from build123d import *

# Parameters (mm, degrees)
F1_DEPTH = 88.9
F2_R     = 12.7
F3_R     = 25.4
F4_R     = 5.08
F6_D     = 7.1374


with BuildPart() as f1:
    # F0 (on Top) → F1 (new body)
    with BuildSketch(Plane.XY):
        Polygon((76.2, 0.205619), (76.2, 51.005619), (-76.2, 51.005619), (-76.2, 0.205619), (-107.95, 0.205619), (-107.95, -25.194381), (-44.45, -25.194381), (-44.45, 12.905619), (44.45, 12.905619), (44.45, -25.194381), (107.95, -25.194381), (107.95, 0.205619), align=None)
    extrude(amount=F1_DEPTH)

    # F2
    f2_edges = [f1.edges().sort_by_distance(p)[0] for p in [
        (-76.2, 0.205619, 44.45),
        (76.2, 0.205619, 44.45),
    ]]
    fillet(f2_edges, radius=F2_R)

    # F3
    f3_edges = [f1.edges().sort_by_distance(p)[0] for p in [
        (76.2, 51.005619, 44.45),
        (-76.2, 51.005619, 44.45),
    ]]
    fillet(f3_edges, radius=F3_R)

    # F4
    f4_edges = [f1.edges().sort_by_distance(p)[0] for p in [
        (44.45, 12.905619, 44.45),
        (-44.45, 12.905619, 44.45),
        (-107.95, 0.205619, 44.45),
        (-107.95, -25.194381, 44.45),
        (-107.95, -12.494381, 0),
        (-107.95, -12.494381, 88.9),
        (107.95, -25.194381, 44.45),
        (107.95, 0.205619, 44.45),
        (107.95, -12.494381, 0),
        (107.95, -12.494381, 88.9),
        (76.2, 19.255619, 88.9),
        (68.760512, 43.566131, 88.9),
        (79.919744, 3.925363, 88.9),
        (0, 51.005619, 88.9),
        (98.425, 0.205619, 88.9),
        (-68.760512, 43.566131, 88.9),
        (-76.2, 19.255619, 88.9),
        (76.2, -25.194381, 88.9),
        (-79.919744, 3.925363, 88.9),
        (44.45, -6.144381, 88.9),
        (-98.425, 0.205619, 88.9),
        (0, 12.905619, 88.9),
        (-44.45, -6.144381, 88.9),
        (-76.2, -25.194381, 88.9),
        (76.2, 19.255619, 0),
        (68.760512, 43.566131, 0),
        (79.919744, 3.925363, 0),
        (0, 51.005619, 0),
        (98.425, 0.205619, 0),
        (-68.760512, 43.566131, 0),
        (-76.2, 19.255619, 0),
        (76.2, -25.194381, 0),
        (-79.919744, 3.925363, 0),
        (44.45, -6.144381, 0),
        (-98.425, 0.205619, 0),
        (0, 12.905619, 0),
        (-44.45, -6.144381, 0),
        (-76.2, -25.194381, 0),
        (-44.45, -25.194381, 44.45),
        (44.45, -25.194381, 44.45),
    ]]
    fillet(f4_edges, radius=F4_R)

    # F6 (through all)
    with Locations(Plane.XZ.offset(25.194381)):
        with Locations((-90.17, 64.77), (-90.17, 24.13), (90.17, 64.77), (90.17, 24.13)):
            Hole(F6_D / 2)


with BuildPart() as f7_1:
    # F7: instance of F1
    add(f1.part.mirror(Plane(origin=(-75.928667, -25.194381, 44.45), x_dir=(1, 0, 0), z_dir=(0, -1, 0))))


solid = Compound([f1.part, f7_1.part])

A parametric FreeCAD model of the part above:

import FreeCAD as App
import Part
import Sketcher

V = App.Vector
Q = App.Units.Quantity


def edges_at(feature, points):
    """Names of the edges that pass closest to the given points."""
    edges = feature.Shape.Edges
    near = lambda p: min(range(len(edges)), key=lambda i: edges[i].distToShape(Part.Vertex(*p))[0])
    return sorted({f"Edge{near(p) + 1}" for p in points})


def add_polygon(sketch, points):
    """Adds a closed chain of lines whose ends are joined by coincident constraints."""
    first, n = sketch.GeometryCount, len(points)
    for a, b in zip(points, points[1:] + points[:1]):
        sketch.addGeometry(Part.LineSegment(App.Vector(*a, 0), App.Vector(*b, 0)), False)
    for i in range(n):
        sketch.addConstraint(Sketcher.Constraint("Coincident", first + i, 2, first + (i + 1) % n, 1))

doc = App.newDocument("Part")
body = doc.addObject("PartDesign::Body", "Body")

# Sketch on XY plane
sketch1 = body.newObject("Sketcher::SketchObject", "Sketch")
sketch1.AttachmentSupport = (doc.getObject("XY_Plane"), [""])
sketch1.MapMode = "FlatFace"
add_polygon(sketch1, [(76, 0), (76, 51), (-76, 51), (-76, 0), (-108, 0), (-108, -25), (-44, -25), (-44, 13), (44, 13), (44, -25), (108, -25), (108, 0)])  # lines 0-11
sketch1.addConstraint([
    Sketcher.Constraint("Vertical", 0),
    Sketcher.Constraint("Horizontal", 1),
    Sketcher.Constraint("Vertical", 2),
    Sketcher.Constraint("Horizontal", 3),
    Sketcher.Constraint("Vertical", 4),
    Sketcher.Constraint("Horizontal", 5),
    Sketcher.Constraint("Vertical", 6),
    Sketcher.Constraint("Horizontal", 7),
    Sketcher.Constraint("Vertical", 8),
    Sketcher.Constraint("Horizontal", 9),
    Sketcher.Constraint("Vertical", 10),
    Sketcher.Constraint("Horizontal", 11),
    Sketcher.Constraint("Symmetric", 5, 2, 8, 2, -2),
    Sketcher.Constraint("Symmetric", 3, 2, 10, 2, -2),
    Sketcher.Constraint("Equal", 3, 11),
    Sketcher.Constraint("DistanceX", 1, 2, 1, 1, Q("6 in")),
    Sketcher.Constraint("DistanceY", 0, 1, 0, 2, Q("2 in")),
    Sketcher.Constraint("DistanceY", 4, 2, 4, 1, Q("1 in")),
    Sketcher.Constraint("DistanceX", 5, 1, 5, 2, Q("2.5 in")),
    Sketcher.Constraint("DistanceX", 7, 1, 7, 2, Q("3.5 in")),
    Sketcher.Constraint("DistanceY", 6, 1, 6, 2, Q("1.5 in")),
    Sketcher.Constraint("DistanceY", -1, 1, 0, 2, Q("51.005619 mm")),
])
pad1 = body.newObject("PartDesign::Pad", "Pad")
pad1.Profile = sketch1
pad1.Length = Q("3.5 in")
doc.recompute()

fillet = body.newObject("PartDesign::Fillet", "Fillet")
fillet.Base = (pad1, edges_at(pad1, [(-76.2, 0.206, 44.45), (76.2, 0.206, 44.45)]))
fillet.Radius = Q("0.5 in")
doc.recompute()

fillet2 = body.newObject("PartDesign::Fillet", "Fillet001")
fillet2.Base = (fillet, edges_at(fillet, [(76.2, 51.006, 44.45), (-76.2, 51.006, 44.45)]))
fillet2.Radius = Q("1 in")
doc.recompute()

fillet3 = body.newObject("PartDesign::Fillet", "Fillet002")
fillet3.Base = (fillet2, ["Edge1"])
fillet3.UseAllEdges = True
fillet3.Radius = Q("0.2 in")

# Sketch on XZ plane
sketch2 = body.newObject("Sketcher::SketchObject", "Sketch001")
sketch2.AttachmentSupport = (doc.getObject("XZ_Plane"), [""])
sketch2.MapMode = "FlatFace"
sketch2.AttachmentOffset = App.Placement(V(0, 0, 25.194381), App.Rotation())
sketch2.addGeometry([
    Part.Circle(V(-90.2, 64.8, 0), V(0, 0, 1), 3.6),
    Part.Circle(V(-90.2, 24.1, 0), V(0, 0, 1), 3.6),
    Part.Circle(V(90.2, 64.8, 0), V(0, 0, 1), 3.6),
    Part.Circle(V(90.2, 24.1, 0), V(0, 0, 1), 3.6),
], False)
sketch2.addConstraint([
    Sketcher.Constraint("Equal", 0, 1),
    Sketcher.Constraint("Equal", 1, 2),
    Sketcher.Constraint("Equal", 2, 3),
    Sketcher.Constraint("Symmetric", 0, 3, 2, 3, -2),
    Sketcher.Constraint("Symmetric", 1, 3, 3, 3, -2),
    Sketcher.Constraint("Vertical", 0, 3, 1, 3),
    Sketcher.Constraint("Diameter", 0, Q("0.281 in")),
    Sketcher.Constraint("DistanceY", 1, 3, 0, 3, Q("1.6 in")),
    Sketcher.Constraint("DistanceX", 0, 3, 2, 3, Q("7.1 in")),
    Sketcher.Constraint("DistanceY", -1, 1, 0, 3, Q("2.55 in")),
])
doc.recompute()
hole = body.newObject("PartDesign::Hole", "Hole")
hole.Profile = sketch2
hole.ThreadType = "None"
hole.Diameter = Q("0.281 in")
hole.DepthType = "ThroughAll"
body2 = doc.addObject("PartDesign::Body", "Body001")
doc.recompute()

mirroring = doc.addObject("Part::Mirroring", "Mirroring")
mirroring.Source = body
mirroring.Base = V(-75.928667, -25.194381, 44.45)
mirroring.Normal = V(0, -1, 0)
body2.BaseFeature = mirroring
doc.recompute()
mirroring.Visibility = False

doc.recompute()
